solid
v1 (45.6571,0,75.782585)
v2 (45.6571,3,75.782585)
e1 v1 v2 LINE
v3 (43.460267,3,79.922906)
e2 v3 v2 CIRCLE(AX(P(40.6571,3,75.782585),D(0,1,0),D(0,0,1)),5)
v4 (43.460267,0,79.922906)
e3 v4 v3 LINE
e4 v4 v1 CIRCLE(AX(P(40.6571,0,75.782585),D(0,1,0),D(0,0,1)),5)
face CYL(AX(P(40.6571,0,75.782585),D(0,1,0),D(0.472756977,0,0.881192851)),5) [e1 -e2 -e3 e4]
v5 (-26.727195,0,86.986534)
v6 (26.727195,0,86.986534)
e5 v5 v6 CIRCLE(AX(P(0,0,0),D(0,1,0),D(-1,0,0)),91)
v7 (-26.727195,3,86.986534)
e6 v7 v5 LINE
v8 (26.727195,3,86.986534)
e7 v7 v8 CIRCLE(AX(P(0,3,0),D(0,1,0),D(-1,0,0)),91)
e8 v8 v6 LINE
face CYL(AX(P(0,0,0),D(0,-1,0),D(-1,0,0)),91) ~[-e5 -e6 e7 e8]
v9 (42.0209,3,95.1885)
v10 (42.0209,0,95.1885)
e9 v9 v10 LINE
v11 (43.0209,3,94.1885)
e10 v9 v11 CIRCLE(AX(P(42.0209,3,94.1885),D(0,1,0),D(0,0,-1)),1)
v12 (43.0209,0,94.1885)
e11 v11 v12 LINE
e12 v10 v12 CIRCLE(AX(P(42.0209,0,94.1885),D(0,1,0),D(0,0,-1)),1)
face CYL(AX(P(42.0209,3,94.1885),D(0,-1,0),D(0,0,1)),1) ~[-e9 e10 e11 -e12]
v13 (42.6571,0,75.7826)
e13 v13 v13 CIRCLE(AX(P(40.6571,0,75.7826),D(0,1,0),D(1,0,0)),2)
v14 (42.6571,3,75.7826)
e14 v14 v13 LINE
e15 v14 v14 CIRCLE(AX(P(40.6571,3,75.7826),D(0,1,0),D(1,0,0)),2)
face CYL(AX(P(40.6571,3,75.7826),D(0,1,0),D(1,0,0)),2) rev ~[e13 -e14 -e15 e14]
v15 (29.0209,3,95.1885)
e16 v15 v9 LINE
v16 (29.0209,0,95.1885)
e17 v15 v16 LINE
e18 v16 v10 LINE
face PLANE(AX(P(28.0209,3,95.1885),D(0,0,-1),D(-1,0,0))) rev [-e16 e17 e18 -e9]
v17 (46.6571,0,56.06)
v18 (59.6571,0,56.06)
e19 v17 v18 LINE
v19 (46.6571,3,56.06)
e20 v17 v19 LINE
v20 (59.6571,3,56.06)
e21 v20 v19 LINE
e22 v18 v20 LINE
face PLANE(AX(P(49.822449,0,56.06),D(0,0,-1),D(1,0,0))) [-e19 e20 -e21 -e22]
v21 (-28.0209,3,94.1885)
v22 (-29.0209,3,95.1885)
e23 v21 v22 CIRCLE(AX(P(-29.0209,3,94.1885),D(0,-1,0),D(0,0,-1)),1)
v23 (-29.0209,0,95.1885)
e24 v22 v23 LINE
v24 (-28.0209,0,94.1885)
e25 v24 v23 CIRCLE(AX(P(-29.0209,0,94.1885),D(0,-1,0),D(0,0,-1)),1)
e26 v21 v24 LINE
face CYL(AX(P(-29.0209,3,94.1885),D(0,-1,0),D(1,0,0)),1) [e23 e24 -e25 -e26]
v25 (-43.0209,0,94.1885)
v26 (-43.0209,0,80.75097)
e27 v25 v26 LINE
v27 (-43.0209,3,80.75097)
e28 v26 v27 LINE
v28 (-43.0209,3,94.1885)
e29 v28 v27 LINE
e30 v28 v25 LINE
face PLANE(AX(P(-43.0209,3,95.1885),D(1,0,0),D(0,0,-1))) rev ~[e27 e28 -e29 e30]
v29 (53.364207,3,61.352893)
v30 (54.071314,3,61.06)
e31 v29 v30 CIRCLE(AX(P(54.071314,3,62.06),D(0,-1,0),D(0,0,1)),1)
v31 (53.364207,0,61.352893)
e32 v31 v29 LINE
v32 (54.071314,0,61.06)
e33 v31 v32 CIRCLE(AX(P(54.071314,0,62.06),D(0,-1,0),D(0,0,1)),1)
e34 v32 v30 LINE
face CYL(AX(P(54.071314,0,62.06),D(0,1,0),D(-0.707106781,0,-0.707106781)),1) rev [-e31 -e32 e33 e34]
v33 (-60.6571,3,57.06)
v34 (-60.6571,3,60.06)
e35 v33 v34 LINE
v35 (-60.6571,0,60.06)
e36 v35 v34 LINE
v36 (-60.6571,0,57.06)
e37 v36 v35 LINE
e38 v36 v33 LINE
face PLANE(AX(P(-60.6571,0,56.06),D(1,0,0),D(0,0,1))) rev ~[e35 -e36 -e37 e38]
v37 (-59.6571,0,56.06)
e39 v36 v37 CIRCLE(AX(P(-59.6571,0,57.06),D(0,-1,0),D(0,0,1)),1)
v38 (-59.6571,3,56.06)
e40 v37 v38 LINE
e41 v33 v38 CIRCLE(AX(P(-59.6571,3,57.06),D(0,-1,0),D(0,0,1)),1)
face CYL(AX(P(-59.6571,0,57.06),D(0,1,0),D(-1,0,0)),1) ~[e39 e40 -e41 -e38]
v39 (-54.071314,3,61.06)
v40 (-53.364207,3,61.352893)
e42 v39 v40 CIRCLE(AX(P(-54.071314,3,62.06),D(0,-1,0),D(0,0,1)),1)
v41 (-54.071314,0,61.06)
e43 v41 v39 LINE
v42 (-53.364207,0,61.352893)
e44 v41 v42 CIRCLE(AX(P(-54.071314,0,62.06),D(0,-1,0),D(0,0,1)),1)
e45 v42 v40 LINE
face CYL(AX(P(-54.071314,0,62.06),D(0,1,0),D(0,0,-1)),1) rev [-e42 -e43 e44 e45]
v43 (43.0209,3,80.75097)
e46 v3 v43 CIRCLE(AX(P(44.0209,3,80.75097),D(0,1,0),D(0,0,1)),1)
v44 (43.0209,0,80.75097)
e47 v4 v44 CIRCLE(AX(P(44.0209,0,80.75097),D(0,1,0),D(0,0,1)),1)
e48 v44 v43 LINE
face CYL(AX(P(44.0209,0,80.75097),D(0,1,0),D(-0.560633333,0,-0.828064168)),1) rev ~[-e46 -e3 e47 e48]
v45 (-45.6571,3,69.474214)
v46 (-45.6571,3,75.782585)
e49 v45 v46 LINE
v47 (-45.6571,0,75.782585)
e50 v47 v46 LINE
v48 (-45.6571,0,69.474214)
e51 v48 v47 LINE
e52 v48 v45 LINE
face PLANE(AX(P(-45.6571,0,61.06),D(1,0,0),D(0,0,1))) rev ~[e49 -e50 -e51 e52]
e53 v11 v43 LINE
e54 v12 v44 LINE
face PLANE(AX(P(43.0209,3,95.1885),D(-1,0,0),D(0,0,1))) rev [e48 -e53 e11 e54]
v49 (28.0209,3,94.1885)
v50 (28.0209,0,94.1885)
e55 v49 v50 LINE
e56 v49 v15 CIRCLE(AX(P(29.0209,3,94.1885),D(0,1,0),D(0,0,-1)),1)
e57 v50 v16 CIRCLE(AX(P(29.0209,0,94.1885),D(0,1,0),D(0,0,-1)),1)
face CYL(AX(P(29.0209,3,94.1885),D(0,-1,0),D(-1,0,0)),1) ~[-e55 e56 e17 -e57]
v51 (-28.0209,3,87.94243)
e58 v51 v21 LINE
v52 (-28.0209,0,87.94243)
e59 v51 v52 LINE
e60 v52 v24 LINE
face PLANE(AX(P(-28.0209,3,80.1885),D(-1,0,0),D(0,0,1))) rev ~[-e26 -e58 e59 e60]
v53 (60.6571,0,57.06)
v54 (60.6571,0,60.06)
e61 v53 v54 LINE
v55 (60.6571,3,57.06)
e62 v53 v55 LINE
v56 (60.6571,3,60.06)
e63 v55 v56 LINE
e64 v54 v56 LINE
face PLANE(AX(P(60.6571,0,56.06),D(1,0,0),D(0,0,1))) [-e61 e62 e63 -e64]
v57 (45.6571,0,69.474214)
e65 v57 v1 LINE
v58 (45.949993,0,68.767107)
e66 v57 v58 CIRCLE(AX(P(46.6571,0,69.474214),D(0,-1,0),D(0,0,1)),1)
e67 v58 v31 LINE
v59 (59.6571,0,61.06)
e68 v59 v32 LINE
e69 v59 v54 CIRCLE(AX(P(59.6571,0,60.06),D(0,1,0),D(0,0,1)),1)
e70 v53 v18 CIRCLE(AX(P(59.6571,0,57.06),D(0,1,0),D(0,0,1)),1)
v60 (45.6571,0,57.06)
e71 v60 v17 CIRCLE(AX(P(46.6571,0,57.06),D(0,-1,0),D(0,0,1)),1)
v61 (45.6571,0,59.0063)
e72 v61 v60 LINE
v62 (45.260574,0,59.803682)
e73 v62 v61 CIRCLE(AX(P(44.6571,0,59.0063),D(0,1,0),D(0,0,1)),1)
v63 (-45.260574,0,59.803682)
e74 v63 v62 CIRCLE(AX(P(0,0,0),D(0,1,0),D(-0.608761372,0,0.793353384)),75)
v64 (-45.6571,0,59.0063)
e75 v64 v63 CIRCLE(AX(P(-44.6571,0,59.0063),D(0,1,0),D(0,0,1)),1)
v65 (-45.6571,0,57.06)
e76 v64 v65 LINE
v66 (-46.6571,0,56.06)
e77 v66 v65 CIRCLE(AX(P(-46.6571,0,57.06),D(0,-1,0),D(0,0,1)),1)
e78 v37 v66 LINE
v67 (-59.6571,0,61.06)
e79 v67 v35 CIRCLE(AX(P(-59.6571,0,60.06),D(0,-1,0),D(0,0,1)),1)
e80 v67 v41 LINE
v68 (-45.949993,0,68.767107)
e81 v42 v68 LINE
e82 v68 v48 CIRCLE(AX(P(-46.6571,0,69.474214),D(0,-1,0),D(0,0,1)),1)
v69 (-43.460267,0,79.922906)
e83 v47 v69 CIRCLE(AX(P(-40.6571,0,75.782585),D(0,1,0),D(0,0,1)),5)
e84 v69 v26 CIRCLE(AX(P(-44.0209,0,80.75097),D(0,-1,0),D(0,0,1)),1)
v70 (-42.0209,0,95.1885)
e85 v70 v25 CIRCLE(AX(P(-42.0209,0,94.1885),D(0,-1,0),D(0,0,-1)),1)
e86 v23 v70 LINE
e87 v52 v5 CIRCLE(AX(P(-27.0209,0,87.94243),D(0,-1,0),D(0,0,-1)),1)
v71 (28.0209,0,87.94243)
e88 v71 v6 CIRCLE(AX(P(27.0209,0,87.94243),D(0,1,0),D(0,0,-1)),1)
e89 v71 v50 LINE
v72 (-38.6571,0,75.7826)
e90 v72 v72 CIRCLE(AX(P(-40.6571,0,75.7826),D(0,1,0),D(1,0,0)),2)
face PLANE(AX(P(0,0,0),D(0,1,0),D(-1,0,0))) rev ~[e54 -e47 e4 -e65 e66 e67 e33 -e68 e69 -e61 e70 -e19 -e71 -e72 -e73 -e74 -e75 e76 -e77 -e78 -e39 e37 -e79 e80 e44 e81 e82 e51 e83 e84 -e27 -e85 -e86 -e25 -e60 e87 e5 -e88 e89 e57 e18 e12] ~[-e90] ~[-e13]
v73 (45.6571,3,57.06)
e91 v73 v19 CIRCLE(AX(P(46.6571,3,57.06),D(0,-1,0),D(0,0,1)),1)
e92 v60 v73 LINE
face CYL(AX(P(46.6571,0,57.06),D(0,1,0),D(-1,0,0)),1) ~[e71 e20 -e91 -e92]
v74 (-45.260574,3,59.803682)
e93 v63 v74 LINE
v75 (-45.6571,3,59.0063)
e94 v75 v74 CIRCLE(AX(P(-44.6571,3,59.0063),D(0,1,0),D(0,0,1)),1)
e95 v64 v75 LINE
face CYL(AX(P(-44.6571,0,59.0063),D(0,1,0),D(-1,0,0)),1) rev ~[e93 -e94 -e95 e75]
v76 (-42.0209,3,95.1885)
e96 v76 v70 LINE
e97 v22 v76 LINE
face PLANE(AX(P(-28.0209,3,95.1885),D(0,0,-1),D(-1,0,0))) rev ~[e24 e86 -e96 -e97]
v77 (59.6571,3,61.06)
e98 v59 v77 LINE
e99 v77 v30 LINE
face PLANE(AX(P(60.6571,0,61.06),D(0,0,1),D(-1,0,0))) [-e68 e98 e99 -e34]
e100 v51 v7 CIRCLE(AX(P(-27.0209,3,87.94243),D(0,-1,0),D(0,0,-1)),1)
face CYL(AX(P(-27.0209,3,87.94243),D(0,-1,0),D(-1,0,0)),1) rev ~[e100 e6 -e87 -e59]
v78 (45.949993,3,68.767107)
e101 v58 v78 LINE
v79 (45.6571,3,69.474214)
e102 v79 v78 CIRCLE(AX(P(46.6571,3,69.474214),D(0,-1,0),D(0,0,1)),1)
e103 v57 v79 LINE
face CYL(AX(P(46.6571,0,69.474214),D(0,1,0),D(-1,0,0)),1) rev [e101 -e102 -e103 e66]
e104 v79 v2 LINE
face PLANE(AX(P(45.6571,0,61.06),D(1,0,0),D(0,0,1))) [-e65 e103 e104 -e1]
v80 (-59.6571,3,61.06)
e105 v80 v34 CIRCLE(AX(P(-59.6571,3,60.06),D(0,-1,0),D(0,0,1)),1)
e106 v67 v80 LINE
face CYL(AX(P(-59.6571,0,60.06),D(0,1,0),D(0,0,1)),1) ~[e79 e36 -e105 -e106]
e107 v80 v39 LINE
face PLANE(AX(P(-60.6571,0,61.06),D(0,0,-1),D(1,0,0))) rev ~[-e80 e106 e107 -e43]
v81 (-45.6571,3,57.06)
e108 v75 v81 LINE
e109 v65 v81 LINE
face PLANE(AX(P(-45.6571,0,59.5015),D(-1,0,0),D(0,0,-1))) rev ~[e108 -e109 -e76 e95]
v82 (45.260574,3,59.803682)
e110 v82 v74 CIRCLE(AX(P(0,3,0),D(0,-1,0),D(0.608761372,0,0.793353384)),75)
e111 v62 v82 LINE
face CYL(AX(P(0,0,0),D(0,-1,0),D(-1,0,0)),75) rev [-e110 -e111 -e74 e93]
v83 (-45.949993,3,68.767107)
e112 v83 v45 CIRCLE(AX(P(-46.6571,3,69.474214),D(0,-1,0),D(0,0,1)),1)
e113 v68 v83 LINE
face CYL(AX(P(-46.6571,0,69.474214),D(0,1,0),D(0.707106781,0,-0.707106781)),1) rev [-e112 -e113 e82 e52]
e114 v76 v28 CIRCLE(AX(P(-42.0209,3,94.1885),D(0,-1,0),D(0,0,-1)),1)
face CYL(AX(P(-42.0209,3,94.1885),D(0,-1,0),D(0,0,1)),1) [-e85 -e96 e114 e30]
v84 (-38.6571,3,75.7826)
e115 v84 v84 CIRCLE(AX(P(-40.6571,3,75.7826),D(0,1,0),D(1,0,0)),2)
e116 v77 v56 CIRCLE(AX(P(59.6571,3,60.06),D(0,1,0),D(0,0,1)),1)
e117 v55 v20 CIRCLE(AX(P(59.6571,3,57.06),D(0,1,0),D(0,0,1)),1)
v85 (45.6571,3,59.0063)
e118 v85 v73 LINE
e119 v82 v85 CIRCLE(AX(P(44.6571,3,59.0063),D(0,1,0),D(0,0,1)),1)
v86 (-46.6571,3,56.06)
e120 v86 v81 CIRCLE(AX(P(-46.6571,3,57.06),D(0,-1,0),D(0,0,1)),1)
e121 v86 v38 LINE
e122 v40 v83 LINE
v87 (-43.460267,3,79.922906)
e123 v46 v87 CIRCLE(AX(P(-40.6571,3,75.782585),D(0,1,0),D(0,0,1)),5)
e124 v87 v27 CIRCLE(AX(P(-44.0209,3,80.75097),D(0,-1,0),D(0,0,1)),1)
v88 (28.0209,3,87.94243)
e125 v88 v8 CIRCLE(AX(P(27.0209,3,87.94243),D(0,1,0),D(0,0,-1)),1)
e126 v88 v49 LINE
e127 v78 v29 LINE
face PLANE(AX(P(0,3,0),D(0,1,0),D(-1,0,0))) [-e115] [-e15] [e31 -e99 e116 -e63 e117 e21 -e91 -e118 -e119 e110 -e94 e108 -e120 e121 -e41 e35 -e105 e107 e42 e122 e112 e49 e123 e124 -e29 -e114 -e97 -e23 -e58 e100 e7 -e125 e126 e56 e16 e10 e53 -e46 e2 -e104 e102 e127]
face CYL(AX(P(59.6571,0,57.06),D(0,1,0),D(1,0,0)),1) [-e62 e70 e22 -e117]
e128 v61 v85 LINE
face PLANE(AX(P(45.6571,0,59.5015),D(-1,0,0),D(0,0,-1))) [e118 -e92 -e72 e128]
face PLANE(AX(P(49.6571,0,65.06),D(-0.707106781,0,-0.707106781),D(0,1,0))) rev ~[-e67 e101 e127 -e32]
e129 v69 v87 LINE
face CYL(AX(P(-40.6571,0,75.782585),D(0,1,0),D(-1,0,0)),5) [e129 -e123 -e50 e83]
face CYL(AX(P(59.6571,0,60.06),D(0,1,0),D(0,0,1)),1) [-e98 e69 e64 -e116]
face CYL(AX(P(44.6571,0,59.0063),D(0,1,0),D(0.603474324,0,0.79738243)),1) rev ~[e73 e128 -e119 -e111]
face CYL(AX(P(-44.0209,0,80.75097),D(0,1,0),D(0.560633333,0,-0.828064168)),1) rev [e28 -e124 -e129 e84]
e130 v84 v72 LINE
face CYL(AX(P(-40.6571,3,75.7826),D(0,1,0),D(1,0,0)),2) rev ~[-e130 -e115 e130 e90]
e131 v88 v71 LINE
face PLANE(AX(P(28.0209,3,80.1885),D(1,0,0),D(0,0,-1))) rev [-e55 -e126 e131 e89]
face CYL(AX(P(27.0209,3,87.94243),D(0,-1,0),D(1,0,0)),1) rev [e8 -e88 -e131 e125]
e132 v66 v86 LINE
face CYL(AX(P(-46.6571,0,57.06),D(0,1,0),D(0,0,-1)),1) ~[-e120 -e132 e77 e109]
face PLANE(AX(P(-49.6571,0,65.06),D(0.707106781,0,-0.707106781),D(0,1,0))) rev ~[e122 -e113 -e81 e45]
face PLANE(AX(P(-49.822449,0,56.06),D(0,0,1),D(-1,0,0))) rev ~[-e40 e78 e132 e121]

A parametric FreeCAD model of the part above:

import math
import FreeCAD as App
import Part
import Sketcher
from FreeCAD import Vector


def edges_at(feature, points):
    """Names of the edges that pass closest to the given points."""
    edges = feature.Shape.Edges
    near = lambda p: min(range(len(edges)), key=lambda i: edges[i].distToShape(Part.Vertex(*p))[0])
    return sorted({f"Edge{near(p) + 1}" for p in points})

doc = App.newDocument("Part")
body = doc.addObject("PartDesign::Body", "Body")

sketch1 = body.newObject("Sketcher::SketchObject", "Sketch")
sketch1.AttachmentSupport = (doc.getObject("XZ_Plane"), [""])
sketch1.MapMode = "FlatFace"
sketch1.addGeometry(Part.LineSegment(Vector(-60.7, 61.1, 0), Vector(-45.7, 61.1, 0)), False)
sketch1.addGeometry(Part.LineSegment(Vector(-45.7, 61.1, 0), Vector(-45.7, 78.7, 0)), False)
sketch1.addGeometry(Part.ArcOfCircle(Part.Circle(Vector(0, 0, 0), Vector(0, 0, 1), 91), math.radians(60), math.radians(120)), False)
sketch1.addGeometry(Part.LineSegment(Vector(45.7, 78.7, 0), Vector(45.7, 61.1, 0)), False)
sketch1.addGeometry(Part.LineSegment(Vector(45.7, 61.1, 0), Vector(60.7, 61.1, 0)), False)
sketch1.addGeometry(Part.LineSegment(Vector(60.7, 61.1, 0), Vector(60.7, 56.1, 0)), False)
sketch1.addGeometry(Part.LineSegment(Vector(60.7, 56.1, 0), Vector(45.7, 56.1, 0)), False)
sketch1.addGeometry(Part.LineSegment(Vector(45.7, 56.1, 0), Vector(45.7, 59.5, 0)), False)
sketch1.addGeometry(Part.ArcOfCircle(Part.Circle(Vector(0, 0, 0), Vector(0, 0, 1), 75), math.radians(53), math.radians(127)), False)
sketch1.addGeometry(Part.LineSegment(Vector(-45.7, 59.5, 0), Vector(-45.7, 56.1, 0)), False)
sketch1.addGeometry(Part.LineSegment(Vector(-45.7, 56.1, 0), Vector(-60.7, 56.1, 0)), False)
sketch1.addGeometry(Part.LineSegment(Vector(-60.7, 56.1, 0), Vector(-60.7, 61.1, 0)), False)
sketch1.addConstraint(Sketcher.Constraint("Coincident", 0, 2, 1, 1))
sketch1.addConstraint(Sketcher.Constraint("Coincident", 1, 2, 2, 2))
sketch1.addConstraint(Sketcher.Constraint("Coincident", 2, 1, 3, 1))
sketch1.addConstraint(Sketcher.Constraint("Coincident", 3, 2, 4, 1))
sketch1.addConstraint(Sketcher.Constraint("Coincident", 4, 2, 5, 1))
sketch1.addConstraint(Sketcher.Constraint("Coincident", 5, 2, 6, 1))
sketch1.addConstraint(Sketcher.Constraint("Coincident", 6, 2, 7, 1))
sketch1.addConstraint(Sketcher.Constraint("Coincident", 7, 2, 8, 1))
sketch1.addConstraint(Sketcher.Constraint("Coincident", 8, 2, 9, 1))
sketch1.addConstraint(Sketcher.Constraint("Coincident", 9, 2, 10, 1))
sketch1.addConstraint(Sketcher.Constraint("Coincident", 10, 2, 11, 1))
sketch1.addConstraint(Sketcher.Constraint("Coincident", 11, 2, 0, 1))
sketch1.addConstraint(Sketcher.Constraint("Horizontal", 0))
sketch1.addConstraint(Sketcher.Constraint("Vertical", 1))
sketch1.addConstraint(Sketcher.Constraint("Vertical", 3))
sketch1.addConstraint(Sketcher.Constraint("Horizontal", 4))
sketch1.addConstraint(Sketcher.Constraint("Vertical", 5))
sketch1.addConstraint(Sketcher.Constraint("Horizontal", 6))
sketch1.addConstraint(Sketcher.Constraint("Vertical", 7))
sketch1.addConstraint(Sketcher.Constraint("Vertical", 9))
sketch1.addConstraint(Sketcher.Constraint("Horizontal", 10))
sketch1.addConstraint(Sketcher.Constraint("Vertical", 11))
sketch1.addConstraint(Sketcher.Constraint("Coincident", 2, 3, -1, 1))
sketch1.addConstraint(Sketcher.Constraint("Coincident", 8, 3, -1, 1))
sketch1.addConstraint(Sketcher.Constraint("Symmetric", 0, 2, 3, 2, -2))
sketch1.addConstraint(Sketcher.Constraint("Symmetric", 6, 2, 9, 2, -2))
sketch1.addConstraint(Sketcher.Constraint("Vertical", 3, 2, 6, 2))
sketch1.addConstraint(Sketcher.Constraint("Equal", 0, 4))
sketch1.addConstraint(Sketcher.Constraint("Radius", 8, 75.0))
sketch1.addConstraint(Sketcher.Constraint("DistanceX", 0, 1, 0, 2, 15.0))
sketch1.addConstraint(Sketcher.Constraint("DistanceY", 5, 2, 5, 1, 5.0))
sketch1.addConstraint(Sketcher.Constraint("Radius", 2, 91.0))
sketch1.addConstraint(Sketcher.Constraint("DistanceY", -1, 1, 0, 2, 61.06))
sketch1.addConstraint(Sketcher.Constraint("DistanceY", 1, 1, 1, 2, 17.6574))
pad1 = body.newObject("PartDesign::Pad", "Pad")
pad1.Profile = sketch1
pad1.Length = 3
pad1.Reversed = True
doc.recompute()

fillet = body.newObject("PartDesign::Fillet", "Fillet")
fillet.Base = (pad1, edges_at(pad1, [(-45.657, 1.5, 78.717), (45.657, 1.5, 78.717)]))
fillet.Radius = 5

sketch2 = body.newObject("Sketcher::SketchObject", "Sketch001")
sketch2.AttachmentSupport = (doc.getObject("XZ_Plane"), [""])
sketch2.MapMode = "FlatFace"
sketch2.AttachmentOffset = App.Placement(Vector(0, 0, -3), App.Rotation())
sketch2.addGeometry(Part.Circle(Vector(-40.7, 75.8, 0), Vector(0, 0, 1), 2), False)
sketch2.addGeometry(Part.Circle(Vector(40.7, 75.8, 0), Vector(0, 0, 1), 2), False)
sketch2.addConstraint(Sketcher.Constraint("Equal", 0, 1))
sketch2.addConstraint(Sketcher.Constraint("Symmetric", 0, 3, 1, 3, -2))
sketch2.addConstraint(Sketcher.Constraint("Diameter", 0, 4.0))
sketch2.addConstraint(Sketcher.Constraint("DistanceX", 0, 3, -1, 1, 40.657))
sketch2.addConstraint(Sketcher.Constraint("DistanceY", -1, 1, 0, 3, 75.7826))
pocket1 = body.newObject("PartDesign::Pocket", "Pocket")
pocket1.Profile = sketch2
pocket1.Length = 3
pocket1.Reversed = True
doc.recompute()

fillet2 = body.newObject("PartDesign::Fillet", "Fillet001")
fillet2.Base = (pocket1, edges_at(pocket1, [
    (45.657, 1.5, 56.06),
    (45.657, 1.5, 59.502),
    (60.657, 1.5, 56.06),
    (60.657, 1.5, 61.06),
    (-45.657, 1.5, 56.06),
    (-45.657, 1.5, 59.502),
    (-60.657, 1.5, 56.06),
    (-60.657, 1.5, 61.06),
]))
fillet2.Radius = 1
doc.recompute()

chamfer = body.newObject("PartDesign::Chamfer", "Chamfer")
chamfer.Base = (fillet2, edges_at(fillet2, [(-45.657, 1.5, 61.06), (45.657, 1.5, 61.06)]))
chamfer.Size = 8
doc.recompute()

fillet3 = body.newObject("PartDesign::Fillet", "Fillet002")
fillet3.Base = (chamfer, edges_at(chamfer, [
    (-53.657, 1.5, 61.06),
    (-45.657, 1.5, 69.06),
    (45.657, 1.5, 69.06),
    (53.657, 1.5, 61.06),
]))
fillet3.Radius = 1

sketch3 = body.newObject("Sketcher::SketchObject", "Sketch002")
sketch3.AttachmentSupport = (doc.getObject("XZ_Plane"), [""])
sketch3.MapMode = "FlatFace"
sketch3.AttachmentOffset = App.Placement(Vector(0, 0, -3), App.Rotation())
sketch3.addGeometry(Part.LineSegment(Vector(-28, 80, 0), Vector(-43, 80, 0)), False)
sketch3.addGeometry(Part.LineSegment(Vector(-43, 80, 0), Vector(-43, 95, 0)), False)
sketch3.addGeometry(Part.LineSegment(Vector(-43, 95, 0), Vector(-28, 95, 0)), False)
sketch3.addGeometry(Part.LineSegment(Vector(-28, 95, 0), Vector(-28, 80, 0)), False)
sketch3.addConstraint(Sketcher.Constraint("Coincident", 0, 2, 1, 1))
sketch3.addConstraint(Sketcher.Constraint("Coincident", 1, 2, 2, 1))
sketch3.addConstraint(Sketcher.Constraint("Coincident", 2, 2, 3, 1))
sketch3.addConstraint(Sketcher.Constraint("Coincident", 3, 2, 0, 1))
sketch3.addConstraint(Sketcher.Constraint("Horizontal", 0))
sketch3.addConstraint(Sketcher.Constraint("Vertical", 1))
sketch3.addConstraint(Sketcher.Constraint("Horizontal", 2))
sketch3.addConstraint(Sketcher.Constraint("Vertical", 3))
sketch3.addConstraint(Sketcher.Constraint("Equal", 2, 1))
sketch3.addConstraint(Sketcher.Constraint("DistanceX", 0, 2, 0, 1, 15.0))
sketch3.addConstraint(Sketcher.Constraint("DistanceX", 0, 2, -1, 1, 43.021))
sketch3.addConstraint(Sketcher.Constraint("DistanceY", -1, 1, 0, 2, 80.1885))
pad2 = body.newObject("PartDesign::Pad", "Pad001")
pad2.Profile = sketch3
pad2.Length = 3
doc.recompute()

fillet4 = body.newObject("PartDesign::Fillet", "Fillet003")
fillet4.Base = (pad2, edges_at(pad2, [(-43.021, 1.5, 80.189), (-43.021, 1.5, 95.189), (-28.021, 1.5, 95.189)]))
fillet4.Radius = 1
doc.recompute()

fillet5 = body.newObject("PartDesign::Fillet", "Fillet004")
fillet5.Base = (fillet4, edges_at(fillet4, [(-28.021, 1.5, 86.579)]))
fillet5.Radius = 1
doc.recompute()

mirrored = body.newObject("PartDesign::Mirrored", "Mirrored")
mirrored.Originals = [pad2, fillet4, fillet5]
mirrored.MirrorPlane = (doc.getObject("YZ_Plane"), [""])
body.Tip = mirrored

doc.recompute()
